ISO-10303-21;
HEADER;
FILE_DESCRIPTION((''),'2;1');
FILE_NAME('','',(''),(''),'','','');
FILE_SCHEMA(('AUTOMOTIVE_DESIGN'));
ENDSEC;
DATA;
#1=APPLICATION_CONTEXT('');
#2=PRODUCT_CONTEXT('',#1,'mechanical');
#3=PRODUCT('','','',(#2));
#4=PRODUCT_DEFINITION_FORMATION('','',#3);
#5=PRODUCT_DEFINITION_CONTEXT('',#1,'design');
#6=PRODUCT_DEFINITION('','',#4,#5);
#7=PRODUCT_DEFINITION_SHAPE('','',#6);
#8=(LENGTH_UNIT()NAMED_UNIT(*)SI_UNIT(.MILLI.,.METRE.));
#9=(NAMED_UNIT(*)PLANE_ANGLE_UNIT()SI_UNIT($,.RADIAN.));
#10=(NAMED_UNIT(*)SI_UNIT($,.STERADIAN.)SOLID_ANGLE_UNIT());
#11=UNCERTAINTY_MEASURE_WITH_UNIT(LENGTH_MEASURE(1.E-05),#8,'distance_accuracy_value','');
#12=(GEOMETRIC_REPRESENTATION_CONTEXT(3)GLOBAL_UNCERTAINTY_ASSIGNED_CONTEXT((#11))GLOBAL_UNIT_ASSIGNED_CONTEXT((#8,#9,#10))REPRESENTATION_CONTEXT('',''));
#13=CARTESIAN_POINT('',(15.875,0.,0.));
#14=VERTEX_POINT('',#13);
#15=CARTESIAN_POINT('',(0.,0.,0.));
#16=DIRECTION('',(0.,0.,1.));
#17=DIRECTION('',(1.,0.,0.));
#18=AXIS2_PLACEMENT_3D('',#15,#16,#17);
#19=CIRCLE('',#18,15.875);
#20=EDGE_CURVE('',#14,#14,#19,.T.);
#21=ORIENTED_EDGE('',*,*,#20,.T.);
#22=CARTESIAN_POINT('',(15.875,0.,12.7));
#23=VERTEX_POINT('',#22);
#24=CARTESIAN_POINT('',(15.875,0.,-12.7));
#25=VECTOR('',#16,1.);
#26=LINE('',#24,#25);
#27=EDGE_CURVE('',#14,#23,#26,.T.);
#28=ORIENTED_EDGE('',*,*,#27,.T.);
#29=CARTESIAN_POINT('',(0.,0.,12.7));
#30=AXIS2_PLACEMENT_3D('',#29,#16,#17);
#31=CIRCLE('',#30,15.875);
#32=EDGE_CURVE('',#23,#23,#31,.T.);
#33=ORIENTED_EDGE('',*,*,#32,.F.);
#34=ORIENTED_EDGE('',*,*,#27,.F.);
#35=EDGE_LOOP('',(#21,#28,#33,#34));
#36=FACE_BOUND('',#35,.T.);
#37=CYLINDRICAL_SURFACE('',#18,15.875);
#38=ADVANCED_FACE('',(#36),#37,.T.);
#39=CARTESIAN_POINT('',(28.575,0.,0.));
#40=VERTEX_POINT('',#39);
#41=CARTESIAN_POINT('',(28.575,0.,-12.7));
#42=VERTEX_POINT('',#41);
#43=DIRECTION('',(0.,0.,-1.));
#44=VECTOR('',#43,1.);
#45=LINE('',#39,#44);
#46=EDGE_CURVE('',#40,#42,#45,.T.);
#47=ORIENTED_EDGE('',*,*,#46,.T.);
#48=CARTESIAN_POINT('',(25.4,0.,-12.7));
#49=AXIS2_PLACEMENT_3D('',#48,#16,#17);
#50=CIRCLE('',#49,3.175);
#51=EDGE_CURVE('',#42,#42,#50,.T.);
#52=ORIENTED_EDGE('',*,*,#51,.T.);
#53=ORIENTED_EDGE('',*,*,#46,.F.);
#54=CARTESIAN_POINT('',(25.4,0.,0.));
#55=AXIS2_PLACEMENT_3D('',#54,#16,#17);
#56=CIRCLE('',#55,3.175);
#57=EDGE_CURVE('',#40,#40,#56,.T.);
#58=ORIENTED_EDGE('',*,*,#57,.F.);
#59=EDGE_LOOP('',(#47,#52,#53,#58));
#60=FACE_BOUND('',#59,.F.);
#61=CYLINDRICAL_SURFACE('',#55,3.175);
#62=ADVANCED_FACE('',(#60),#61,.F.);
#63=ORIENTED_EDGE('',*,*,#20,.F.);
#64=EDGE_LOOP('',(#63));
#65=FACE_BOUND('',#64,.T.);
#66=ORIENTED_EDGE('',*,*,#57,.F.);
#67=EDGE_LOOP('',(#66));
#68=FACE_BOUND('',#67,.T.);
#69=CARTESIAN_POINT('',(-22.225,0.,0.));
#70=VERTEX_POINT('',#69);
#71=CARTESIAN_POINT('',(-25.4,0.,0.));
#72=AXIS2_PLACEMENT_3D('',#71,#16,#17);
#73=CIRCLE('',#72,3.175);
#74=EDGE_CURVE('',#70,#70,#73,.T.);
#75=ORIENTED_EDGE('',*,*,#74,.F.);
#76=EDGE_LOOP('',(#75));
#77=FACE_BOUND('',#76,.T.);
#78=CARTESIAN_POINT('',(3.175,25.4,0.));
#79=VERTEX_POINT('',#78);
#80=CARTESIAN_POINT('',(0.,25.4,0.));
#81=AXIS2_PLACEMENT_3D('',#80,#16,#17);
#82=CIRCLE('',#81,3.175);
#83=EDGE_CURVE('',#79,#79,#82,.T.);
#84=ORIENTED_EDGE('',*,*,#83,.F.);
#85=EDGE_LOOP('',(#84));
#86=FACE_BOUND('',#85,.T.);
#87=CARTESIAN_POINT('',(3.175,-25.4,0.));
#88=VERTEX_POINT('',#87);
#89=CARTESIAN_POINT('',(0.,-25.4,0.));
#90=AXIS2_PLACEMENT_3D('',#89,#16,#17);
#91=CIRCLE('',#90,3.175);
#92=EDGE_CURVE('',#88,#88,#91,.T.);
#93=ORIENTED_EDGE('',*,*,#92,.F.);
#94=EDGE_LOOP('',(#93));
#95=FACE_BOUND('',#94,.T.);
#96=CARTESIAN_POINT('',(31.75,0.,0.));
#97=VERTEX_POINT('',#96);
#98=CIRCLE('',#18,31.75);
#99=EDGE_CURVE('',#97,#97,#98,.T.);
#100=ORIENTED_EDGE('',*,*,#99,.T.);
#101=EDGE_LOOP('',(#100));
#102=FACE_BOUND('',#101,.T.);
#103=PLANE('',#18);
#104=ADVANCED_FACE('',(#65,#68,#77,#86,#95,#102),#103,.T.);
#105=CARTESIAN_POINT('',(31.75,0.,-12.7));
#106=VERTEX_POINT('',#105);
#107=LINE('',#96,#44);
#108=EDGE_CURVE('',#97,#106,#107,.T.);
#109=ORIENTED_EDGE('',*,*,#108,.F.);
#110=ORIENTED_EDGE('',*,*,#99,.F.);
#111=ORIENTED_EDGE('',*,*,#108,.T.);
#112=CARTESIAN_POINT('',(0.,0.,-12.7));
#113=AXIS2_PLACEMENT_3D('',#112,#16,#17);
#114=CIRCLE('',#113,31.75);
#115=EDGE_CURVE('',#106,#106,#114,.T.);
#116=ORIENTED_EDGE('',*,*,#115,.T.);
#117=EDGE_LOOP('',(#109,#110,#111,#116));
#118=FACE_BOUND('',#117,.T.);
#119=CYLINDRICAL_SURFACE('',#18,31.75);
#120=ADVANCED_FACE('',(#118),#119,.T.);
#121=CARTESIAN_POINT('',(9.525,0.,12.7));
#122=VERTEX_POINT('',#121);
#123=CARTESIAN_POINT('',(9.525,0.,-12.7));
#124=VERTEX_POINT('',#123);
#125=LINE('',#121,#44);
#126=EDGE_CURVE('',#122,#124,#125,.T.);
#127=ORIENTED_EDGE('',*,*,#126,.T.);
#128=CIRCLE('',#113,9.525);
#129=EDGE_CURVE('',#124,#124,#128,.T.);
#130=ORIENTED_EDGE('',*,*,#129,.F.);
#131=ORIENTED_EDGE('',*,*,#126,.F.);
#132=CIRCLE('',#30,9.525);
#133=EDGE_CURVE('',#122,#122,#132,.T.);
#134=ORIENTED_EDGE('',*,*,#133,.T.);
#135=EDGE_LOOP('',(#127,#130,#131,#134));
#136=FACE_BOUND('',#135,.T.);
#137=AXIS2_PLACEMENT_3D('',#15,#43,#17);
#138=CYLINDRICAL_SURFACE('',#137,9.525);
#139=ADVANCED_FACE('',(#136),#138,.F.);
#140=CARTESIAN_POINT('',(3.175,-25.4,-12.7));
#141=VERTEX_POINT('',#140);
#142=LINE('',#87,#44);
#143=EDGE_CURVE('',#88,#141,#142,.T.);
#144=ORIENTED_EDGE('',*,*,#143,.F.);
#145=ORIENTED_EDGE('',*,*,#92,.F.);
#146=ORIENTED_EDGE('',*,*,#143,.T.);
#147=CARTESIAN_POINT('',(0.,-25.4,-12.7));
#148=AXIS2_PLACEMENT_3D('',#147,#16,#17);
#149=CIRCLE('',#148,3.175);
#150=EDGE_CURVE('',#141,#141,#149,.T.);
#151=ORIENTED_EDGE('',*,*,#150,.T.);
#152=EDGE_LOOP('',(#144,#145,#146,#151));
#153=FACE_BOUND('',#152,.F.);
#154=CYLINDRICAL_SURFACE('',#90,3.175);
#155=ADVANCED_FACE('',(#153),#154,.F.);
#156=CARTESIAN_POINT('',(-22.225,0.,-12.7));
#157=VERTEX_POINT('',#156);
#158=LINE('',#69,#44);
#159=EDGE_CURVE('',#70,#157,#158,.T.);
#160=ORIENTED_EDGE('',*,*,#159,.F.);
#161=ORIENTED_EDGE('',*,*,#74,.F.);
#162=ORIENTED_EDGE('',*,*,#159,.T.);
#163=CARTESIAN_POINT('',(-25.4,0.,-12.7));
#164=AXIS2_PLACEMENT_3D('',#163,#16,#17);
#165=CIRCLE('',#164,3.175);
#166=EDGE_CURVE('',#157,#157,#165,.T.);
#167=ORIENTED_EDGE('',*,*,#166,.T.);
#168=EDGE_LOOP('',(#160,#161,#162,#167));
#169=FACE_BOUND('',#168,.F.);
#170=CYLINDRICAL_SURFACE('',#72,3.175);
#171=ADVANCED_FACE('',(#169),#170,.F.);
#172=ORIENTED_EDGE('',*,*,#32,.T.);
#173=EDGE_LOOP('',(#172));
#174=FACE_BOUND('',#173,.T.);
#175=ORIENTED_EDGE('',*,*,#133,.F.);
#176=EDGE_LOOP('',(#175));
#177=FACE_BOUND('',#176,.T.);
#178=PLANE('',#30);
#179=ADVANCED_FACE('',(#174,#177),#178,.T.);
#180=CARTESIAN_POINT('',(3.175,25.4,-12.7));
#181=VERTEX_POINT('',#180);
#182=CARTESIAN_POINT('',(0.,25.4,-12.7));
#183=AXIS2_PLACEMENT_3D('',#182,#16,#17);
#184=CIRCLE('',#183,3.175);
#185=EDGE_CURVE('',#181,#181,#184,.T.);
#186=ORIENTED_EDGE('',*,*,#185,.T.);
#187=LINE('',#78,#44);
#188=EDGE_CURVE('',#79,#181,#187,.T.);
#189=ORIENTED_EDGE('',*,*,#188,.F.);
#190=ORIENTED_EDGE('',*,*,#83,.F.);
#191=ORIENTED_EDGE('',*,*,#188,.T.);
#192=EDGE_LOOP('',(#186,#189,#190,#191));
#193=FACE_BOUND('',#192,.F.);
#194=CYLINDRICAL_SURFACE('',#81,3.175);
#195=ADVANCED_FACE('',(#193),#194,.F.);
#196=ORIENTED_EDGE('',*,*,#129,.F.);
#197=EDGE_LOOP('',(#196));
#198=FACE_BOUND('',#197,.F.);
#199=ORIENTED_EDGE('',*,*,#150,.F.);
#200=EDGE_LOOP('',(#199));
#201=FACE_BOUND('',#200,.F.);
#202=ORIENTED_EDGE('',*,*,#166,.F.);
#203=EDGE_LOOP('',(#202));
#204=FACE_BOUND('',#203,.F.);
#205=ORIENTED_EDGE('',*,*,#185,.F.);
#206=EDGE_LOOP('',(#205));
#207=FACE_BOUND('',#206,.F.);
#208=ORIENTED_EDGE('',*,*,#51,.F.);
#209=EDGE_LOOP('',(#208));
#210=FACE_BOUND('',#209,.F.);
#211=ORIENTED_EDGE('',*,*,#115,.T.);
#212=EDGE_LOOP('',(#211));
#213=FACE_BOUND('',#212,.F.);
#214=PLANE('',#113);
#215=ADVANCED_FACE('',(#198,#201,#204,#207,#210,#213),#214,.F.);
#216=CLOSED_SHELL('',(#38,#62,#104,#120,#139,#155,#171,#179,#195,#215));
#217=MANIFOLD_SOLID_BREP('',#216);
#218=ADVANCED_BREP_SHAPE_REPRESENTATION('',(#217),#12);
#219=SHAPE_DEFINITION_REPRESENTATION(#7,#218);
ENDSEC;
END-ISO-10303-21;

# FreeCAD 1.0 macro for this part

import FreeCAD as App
import Part
import Sketcher
Q = App.Units.Quantity

doc = App.newDocument("Part")
body = doc.addObject("PartDesign::Body", "Body")

sketch1 = body.newObject("Sketcher::SketchObject", "Sketch")
sketch1.AttachmentSupport = (doc.getObject("XY_Plane"), [""])
sketch1.MapMode = "FlatFace"
sketch1.addGeometry(Part.Circle(App.Vector(0, 0, 0), App.Vector(0, 0, 1), 31.75), False)
sketch1.addGeometry(Part.Circle(App.Vector(0, -25.4, 0), App.Vector(0, 0, 1), 3.175), False)
sketch1.addGeometry(Part.Circle(App.Vector(0, 0, 0), App.Vector(0, 0, 1), 15.875), False)
sketch1.addGeometry(Part.Circle(App.Vector(-25.4, 0, 0), App.Vector(0, 0, 1), 3.175), False)
sketch1.addGeometry(Part.Circle(App.Vector(25.4, 0, 0), App.Vector(0, 0, 1), 3.175), False)
sketch1.addGeometry(Part.Circle(App.Vector(0, 25.4, 0), App.Vector(0, 0, 1), 3.175), False)
sketch1.addConstraint(Sketcher.Constraint("Coincident", 0, 3, -1, 1))
sketch1.addConstraint(Sketcher.Constraint("Coincident", 2, 3, -1, 1))
sketch1.addConstraint(Sketcher.Constraint("Equal", 1, 3))
sketch1.addConstraint(Sketcher.Constraint("Equal", 3, 4))
sketch1.addConstraint(Sketcher.Constraint("Equal", 4, 5))
sketch1.addConstraint(Sketcher.Constraint("Symmetric", 3, 3, 4, 3, -1, 1))
sketch1.addConstraint(Sketcher.Constraint("Symmetric", 1, 3, 5, 3, -1, 1))
sketch1.addConstraint(Sketcher.Constraint("PointOnObject", 1, 3, -2))
sketch1.addConstraint(Sketcher.Constraint("PointOnObject", 3, 3, -1))
sketch1.addConstraint(Sketcher.Constraint("Diameter", 0, Q("2.5 in")))
sketch1.addConstraint(Sketcher.Constraint("Diameter", 1, Q("0.25 in")))
sketch1.addConstraint(Sketcher.Constraint("Diameter", 2, Q("1.25 in")))
sketch1.addConstraint(Sketcher.Constraint("DistanceY", 1, 3, -1, 1, Q("1 in")))
sketch1.addConstraint(Sketcher.Constraint("DistanceX", 3, 3, -1, 1, Q("1 in")))
pad1 = body.newObject("PartDesign::Pad", "Pad")
pad1.Profile = sketch1
pad1.Length = Q("0.5 in")
pad1.Reversed = True

sketch2 = body.newObject("Sketcher::SketchObject", "Sketch001")
sketch2.AttachmentSupport = (doc.getObject("XY_Plane"), [""])
sketch2.MapMode = "FlatFace"
sketch2.addGeometry(Part.Circle(App.Vector(0, 0, 0), App.Vector(0, 0, 1), 15.875), False)
sketch2.addGeometry(Part.Circle(App.Vector(0, 0, 0), App.Vector(0, 0, 1), 9.525), False)
sketch2.addConstraint(Sketcher.Constraint("Coincident", 0, 3, -1, 1))
sketch2.addConstraint(Sketcher.Constraint("Coincident", 1, 3, -1, 1))
sketch2.addConstraint(Sketcher.Constraint("Diameter", 0, Q("1.25 in")))
sketch2.addConstraint(Sketcher.Constraint("Diameter", 1, Q("0.75 in")))
pad2 = body.newObject("PartDesign::Pad", "Pad001")
pad2.Profile = sketch2
pad2.Length = Q("1 in")
pad2.Midplane = True

doc.recompute()
